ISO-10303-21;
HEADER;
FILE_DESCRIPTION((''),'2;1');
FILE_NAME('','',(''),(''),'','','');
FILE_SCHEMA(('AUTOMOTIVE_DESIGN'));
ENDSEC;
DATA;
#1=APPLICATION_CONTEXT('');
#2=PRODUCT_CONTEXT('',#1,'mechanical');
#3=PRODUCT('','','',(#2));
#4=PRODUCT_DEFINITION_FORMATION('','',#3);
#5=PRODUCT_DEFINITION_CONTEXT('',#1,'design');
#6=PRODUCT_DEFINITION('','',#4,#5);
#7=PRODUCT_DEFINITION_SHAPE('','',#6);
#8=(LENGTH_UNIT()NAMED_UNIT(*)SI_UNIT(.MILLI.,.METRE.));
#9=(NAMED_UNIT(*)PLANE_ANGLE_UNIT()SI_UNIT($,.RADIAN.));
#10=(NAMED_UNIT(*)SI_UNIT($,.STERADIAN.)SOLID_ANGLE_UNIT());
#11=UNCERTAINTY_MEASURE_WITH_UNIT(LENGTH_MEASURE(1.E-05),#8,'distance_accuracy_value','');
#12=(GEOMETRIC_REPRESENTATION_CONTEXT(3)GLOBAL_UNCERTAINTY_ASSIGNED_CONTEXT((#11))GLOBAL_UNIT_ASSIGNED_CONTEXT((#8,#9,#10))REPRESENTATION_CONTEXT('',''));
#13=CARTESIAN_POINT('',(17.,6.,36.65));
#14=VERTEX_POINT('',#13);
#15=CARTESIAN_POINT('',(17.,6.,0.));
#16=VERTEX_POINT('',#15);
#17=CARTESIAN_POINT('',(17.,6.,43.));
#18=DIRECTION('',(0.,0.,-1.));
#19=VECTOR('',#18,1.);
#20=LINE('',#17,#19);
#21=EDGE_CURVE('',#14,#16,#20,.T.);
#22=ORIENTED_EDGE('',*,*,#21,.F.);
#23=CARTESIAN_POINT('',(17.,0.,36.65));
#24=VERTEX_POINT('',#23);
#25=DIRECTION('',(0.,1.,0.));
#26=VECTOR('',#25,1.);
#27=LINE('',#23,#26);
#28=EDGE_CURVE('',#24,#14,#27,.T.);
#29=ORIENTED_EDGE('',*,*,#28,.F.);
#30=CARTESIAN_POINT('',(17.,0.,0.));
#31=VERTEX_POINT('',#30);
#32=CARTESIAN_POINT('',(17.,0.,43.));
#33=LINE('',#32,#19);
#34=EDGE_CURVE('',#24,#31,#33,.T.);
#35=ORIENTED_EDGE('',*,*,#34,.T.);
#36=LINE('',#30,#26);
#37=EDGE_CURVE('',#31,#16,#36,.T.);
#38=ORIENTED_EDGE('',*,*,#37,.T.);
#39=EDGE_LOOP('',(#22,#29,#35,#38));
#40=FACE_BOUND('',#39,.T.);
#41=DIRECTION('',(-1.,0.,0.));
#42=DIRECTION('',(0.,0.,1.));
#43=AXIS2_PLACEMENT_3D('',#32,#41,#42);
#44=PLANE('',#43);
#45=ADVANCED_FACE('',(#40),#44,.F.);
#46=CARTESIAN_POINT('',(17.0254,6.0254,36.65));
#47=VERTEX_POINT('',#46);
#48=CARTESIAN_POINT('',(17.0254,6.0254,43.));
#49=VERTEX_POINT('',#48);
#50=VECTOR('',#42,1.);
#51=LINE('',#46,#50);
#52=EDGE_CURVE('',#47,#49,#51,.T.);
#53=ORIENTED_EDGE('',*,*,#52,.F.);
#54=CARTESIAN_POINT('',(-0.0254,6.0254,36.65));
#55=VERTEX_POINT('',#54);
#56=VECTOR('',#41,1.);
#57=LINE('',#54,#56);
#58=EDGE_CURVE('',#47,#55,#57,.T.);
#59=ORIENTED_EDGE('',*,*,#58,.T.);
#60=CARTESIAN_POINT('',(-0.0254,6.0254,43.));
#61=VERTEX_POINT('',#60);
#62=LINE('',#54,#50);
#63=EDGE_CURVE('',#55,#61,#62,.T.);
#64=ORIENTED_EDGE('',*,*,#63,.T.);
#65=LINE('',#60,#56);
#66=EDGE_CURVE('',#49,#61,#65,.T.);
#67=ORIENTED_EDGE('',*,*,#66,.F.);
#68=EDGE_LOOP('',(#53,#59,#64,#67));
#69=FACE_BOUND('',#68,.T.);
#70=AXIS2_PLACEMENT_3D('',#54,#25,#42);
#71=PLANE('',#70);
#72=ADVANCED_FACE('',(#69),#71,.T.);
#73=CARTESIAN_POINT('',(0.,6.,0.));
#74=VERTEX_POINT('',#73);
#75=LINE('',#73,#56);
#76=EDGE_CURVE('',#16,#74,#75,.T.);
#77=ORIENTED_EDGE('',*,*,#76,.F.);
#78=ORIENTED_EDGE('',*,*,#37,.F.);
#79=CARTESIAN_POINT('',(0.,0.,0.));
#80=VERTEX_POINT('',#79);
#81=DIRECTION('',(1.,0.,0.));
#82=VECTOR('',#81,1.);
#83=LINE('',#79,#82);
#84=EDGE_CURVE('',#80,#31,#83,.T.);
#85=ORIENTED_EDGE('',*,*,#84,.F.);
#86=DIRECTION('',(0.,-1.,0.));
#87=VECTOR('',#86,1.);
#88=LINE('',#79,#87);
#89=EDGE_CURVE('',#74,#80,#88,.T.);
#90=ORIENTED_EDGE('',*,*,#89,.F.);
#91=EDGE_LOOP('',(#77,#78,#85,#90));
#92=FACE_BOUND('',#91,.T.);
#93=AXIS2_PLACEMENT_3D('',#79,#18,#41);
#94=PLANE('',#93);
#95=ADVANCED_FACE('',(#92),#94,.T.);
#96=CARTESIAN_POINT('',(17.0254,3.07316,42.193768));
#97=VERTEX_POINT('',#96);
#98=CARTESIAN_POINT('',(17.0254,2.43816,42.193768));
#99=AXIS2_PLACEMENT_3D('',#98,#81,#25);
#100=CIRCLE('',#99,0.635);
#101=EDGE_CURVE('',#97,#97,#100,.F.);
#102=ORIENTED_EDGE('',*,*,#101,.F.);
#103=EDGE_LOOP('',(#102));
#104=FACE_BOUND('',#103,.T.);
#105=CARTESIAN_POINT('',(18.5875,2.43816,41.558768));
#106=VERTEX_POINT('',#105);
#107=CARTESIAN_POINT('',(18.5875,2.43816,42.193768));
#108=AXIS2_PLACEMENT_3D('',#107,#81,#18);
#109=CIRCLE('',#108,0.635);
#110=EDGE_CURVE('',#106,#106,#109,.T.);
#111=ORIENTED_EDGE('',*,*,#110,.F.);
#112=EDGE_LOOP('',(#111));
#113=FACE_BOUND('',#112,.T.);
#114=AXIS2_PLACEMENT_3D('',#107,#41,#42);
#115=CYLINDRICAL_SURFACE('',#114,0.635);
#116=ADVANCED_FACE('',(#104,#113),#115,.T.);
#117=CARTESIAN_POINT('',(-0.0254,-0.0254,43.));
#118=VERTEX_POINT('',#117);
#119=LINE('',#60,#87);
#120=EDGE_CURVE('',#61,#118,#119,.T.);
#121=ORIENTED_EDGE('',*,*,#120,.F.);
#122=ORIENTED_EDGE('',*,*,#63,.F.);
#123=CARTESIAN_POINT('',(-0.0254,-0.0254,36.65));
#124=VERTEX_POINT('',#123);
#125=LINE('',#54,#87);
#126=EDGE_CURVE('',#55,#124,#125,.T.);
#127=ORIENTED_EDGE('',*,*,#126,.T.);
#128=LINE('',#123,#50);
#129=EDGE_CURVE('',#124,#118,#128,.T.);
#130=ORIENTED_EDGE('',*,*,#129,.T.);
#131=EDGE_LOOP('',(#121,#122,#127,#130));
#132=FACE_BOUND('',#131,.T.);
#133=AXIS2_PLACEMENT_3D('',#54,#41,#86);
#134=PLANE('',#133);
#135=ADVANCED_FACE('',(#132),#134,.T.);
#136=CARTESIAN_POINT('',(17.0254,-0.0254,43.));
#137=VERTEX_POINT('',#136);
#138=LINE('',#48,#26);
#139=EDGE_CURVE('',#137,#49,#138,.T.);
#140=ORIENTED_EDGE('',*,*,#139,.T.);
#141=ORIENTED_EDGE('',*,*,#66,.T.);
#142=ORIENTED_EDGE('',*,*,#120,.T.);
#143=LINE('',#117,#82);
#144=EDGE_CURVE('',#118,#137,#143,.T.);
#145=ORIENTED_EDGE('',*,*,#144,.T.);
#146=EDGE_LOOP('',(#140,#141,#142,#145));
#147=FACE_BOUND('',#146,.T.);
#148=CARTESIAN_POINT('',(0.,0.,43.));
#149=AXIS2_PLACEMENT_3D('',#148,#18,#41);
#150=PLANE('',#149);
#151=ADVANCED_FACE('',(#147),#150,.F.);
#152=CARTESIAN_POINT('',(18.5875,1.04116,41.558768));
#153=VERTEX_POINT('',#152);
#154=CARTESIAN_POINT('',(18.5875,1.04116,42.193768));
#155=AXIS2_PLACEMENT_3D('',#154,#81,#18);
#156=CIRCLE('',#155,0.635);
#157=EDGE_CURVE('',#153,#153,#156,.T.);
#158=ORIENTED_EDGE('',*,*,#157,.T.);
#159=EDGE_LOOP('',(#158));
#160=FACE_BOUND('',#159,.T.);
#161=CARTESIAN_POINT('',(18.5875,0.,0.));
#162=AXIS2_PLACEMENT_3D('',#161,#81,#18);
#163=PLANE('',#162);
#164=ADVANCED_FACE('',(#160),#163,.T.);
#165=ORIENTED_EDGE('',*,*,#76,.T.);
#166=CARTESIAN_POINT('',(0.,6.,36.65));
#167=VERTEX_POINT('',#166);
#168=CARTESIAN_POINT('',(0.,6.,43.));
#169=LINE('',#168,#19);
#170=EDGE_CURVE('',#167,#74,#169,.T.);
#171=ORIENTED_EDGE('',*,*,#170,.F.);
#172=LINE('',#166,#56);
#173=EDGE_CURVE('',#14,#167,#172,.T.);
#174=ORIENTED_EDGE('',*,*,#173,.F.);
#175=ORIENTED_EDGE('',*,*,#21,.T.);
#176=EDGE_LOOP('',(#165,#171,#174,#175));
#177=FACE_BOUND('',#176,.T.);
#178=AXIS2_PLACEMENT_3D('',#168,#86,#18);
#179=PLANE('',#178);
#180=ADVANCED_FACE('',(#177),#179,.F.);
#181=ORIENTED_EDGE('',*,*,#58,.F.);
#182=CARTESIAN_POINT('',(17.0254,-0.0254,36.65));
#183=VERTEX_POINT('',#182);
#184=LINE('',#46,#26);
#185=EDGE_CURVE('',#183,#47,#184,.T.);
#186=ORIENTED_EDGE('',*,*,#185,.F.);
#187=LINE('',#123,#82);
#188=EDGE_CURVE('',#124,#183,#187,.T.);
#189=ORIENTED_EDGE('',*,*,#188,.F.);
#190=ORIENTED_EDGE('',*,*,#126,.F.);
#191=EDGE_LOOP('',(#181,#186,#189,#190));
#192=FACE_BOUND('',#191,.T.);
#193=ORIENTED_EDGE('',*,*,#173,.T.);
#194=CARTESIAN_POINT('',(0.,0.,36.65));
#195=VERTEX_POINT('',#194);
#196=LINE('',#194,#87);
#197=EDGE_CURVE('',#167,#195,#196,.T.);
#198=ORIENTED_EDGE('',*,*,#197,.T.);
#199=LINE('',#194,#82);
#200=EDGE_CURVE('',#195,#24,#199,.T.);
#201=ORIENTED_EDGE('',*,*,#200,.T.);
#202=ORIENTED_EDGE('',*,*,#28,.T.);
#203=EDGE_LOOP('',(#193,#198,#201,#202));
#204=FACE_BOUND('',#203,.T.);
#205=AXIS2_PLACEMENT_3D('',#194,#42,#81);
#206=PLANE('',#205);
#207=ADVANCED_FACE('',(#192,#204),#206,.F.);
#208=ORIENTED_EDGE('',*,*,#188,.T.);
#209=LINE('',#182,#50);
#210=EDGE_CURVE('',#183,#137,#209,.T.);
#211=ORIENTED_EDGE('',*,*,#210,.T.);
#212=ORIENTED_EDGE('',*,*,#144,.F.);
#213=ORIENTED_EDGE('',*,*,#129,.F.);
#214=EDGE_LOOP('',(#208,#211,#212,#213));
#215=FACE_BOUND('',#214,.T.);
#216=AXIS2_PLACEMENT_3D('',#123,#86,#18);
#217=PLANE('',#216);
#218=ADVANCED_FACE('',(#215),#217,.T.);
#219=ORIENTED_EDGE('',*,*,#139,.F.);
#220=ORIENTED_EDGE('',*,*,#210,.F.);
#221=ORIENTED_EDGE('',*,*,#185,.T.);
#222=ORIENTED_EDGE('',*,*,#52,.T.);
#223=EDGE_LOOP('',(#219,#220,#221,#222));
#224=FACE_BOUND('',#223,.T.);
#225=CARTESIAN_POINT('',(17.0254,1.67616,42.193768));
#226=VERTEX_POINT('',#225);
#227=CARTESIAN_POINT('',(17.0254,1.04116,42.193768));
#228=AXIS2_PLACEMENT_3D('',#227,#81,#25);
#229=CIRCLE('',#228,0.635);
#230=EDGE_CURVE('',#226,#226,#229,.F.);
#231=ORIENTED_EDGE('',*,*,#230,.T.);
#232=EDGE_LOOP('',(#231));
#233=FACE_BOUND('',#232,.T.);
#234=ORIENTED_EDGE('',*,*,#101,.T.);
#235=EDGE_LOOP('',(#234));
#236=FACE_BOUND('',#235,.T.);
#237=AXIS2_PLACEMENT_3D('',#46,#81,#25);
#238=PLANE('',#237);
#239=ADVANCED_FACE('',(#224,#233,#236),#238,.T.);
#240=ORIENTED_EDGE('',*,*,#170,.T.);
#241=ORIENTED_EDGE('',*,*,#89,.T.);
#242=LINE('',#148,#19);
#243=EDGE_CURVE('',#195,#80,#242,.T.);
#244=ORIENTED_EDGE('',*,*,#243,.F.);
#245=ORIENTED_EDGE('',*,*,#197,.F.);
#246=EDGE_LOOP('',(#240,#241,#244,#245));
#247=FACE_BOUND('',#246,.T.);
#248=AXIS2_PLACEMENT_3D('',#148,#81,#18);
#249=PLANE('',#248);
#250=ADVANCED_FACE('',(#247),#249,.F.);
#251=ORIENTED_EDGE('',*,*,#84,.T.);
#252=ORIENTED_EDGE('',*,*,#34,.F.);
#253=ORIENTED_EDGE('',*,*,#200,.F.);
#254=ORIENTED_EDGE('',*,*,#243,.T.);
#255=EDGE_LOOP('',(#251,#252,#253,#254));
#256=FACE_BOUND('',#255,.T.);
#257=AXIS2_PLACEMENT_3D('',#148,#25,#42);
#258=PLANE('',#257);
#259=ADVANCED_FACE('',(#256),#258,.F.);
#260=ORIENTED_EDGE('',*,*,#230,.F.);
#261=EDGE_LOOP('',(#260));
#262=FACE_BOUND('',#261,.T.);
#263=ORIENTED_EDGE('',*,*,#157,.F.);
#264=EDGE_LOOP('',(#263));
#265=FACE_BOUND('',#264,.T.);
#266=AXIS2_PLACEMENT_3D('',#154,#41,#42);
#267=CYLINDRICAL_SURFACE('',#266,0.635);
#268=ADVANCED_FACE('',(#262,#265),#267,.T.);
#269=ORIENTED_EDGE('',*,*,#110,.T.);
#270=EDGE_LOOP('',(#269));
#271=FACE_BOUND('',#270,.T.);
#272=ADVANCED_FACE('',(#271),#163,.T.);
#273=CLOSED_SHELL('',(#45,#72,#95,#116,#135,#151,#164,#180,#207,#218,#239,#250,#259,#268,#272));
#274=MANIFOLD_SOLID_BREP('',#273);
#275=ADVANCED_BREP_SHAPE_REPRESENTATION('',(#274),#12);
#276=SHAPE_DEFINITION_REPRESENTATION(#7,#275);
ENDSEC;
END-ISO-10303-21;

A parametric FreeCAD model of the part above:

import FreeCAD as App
import Part
import Sketcher
from FreeCAD import Vector


def add_polygon(sketch, points):
    """Adds a closed chain of lines whose ends are joined by coincident constraints."""
    first, n = sketch.GeometryCount, len(points)
    for a, b in zip(points, points[1:] + points[:1]):
        sketch.addGeometry(Part.LineSegment(App.Vector(*a, 0), App.Vector(*b, 0)), False)
    for i in range(n):
        sketch.addConstraint(Sketcher.Constraint("Coincident", first + i, 2, first + (i + 1) % n, 1))

doc = App.newDocument("Part")
params = doc.addObject("Spreadsheet::Sheet", "Params")
for row, (alias, value) in enumerate([
    ("sketch1_width", "17 mm"),
    ("sketch1_height", "6 mm"),
    ("pad1_length", "43 mm"),
    ("pad2_length", "6.35 mm"),
    ("sketch3_diameter", "1.27 mm"),
    ("pad3_length", "1.5875 mm"),
], start=1):
    params.set(f"A{row}", alias)
    params.set(f"B{row}", "=" + value)
    params.setAlias(f"B{row}", alias)

body = doc.addObject("PartDesign::Body", "Body")

sketch1 = doc.addObject("Sketcher::SketchObject", "Sketch")
body.addObject(sketch1)
sketch1.AttachmentSupport = (doc.XY_Plane, [""])
sketch1.MapMode = "FlatFace"
add_polygon(sketch1, [(0, 6), (0, 0), (17, 0), (17, 6)])
sketch1.addConstraint(Sketcher.Constraint("Vertical", 0))
sketch1.addConstraint(Sketcher.Constraint("Horizontal", 1))
sketch1.addConstraint(Sketcher.Constraint("Vertical", 2))
sketch1.addConstraint(Sketcher.Constraint("Horizontal", 3))
sketch1.addConstraint(Sketcher.Constraint("Coincident", 0, 2, -1, 1))
sketch1.addConstraint(Sketcher.Constraint("DistanceX", 1, 1, 1, 2, 17.0))
sketch1.addConstraint(Sketcher.Constraint("DistanceY", 0, 2, 0, 1, 6.0))
sketch1.setExpression("Constraints[9]", "Params.sketch1_width")
sketch1.setExpression("Constraints[10]", "Params.sketch1_height")
pad1 = doc.addObject("PartDesign::Pad", "Pad")
body.addObject(pad1)
pad1.Profile = sketch1
pad1.setExpression("Length", "Params.pad1_length")

sketch2 = doc.addObject("Sketcher::SketchObject", "Sketch001")
body.addObject(sketch2)
sketch2.AttachmentSupport = (doc.XY_Plane, [""])
sketch2.MapMode = "FlatFace"
sketch2.AttachmentOffset = App.Placement(Vector(0, 0, 43), App.Rotation())
add_polygon(sketch2, [(0, 6), (0, 0), (17, 0), (17, 6)])
sketch2.addConstraint(Sketcher.Constraint("Vertical", 0))
sketch2.addConstraint(Sketcher.Constraint("Horizontal", 1))
sketch2.addConstraint(Sketcher.Constraint("Vertical", 2))
sketch2.addConstraint(Sketcher.Constraint("Horizontal", 3))
sketch2.addConstraint(Sketcher.Constraint("DistanceX", 1, 1, 1, 2, 17.0508))
sketch2.addConstraint(Sketcher.Constraint("DistanceY", 0, 2, 0, 1, 6.0508))
sketch2.addConstraint(Sketcher.Constraint("DistanceX", 0, 2, -1, 1, 0.0254))
sketch2.addConstraint(Sketcher.Constraint("DistanceY", 0, 2, -1, 1, 0.0254))
pad2 = doc.addObject("PartDesign::Pad", "Pad001")
body.addObject(pad2)
pad2.Profile = sketch2
pad2.setExpression("Length", "Params.pad2_length")
pad2.Reversed = True

sketch3 = doc.addObject("Sketcher::SketchObject", "Sketch002")
body.addObject(sketch3)
sketch3.AttachmentSupport = (doc.YZ_Plane, [""])
sketch3.MapMode = "FlatFace"
sketch3.AttachmentOffset = App.Placement(Vector(0, 0, 17), App.Rotation())
sketch3.addGeometry(Part.Circle(Vector(1, 42.2, 0), Vector(0, 0, 1), 0.6), False)
sketch3.addGeometry(Part.Circle(Vector(2.4, 42.2, 0), Vector(0, 0, 1), 0.6), False)
sketch3.addConstraint(Sketcher.Constraint("Equal", 0, 1))
sketch3.addConstraint(Sketcher.Constraint("Horizontal", 0, 3, 1, 3))
sketch3.addConstraint(Sketcher.Constraint("Diameter", 0, 1.27))
sketch3.addConstraint(Sketcher.Constraint("DistanceX", 0, 3, 1, 3, 1.397))
sketch3.addConstraint(Sketcher.Constraint("DistanceX", -1, 1, 0, 3, 1.04116))
sketch3.addConstraint(Sketcher.Constraint("DistanceY", -1, 1, 0, 3, 42.193768))
sketch3.setExpression("Constraints[2]", "Params.sketch3_diameter")
pad3 = doc.addObject("PartDesign::Pad", "Pad002")
body.addObject(pad3)
pad3.Profile = sketch3
pad3.setExpression("Length", "Params.pad3_length")

doc.recompute()
